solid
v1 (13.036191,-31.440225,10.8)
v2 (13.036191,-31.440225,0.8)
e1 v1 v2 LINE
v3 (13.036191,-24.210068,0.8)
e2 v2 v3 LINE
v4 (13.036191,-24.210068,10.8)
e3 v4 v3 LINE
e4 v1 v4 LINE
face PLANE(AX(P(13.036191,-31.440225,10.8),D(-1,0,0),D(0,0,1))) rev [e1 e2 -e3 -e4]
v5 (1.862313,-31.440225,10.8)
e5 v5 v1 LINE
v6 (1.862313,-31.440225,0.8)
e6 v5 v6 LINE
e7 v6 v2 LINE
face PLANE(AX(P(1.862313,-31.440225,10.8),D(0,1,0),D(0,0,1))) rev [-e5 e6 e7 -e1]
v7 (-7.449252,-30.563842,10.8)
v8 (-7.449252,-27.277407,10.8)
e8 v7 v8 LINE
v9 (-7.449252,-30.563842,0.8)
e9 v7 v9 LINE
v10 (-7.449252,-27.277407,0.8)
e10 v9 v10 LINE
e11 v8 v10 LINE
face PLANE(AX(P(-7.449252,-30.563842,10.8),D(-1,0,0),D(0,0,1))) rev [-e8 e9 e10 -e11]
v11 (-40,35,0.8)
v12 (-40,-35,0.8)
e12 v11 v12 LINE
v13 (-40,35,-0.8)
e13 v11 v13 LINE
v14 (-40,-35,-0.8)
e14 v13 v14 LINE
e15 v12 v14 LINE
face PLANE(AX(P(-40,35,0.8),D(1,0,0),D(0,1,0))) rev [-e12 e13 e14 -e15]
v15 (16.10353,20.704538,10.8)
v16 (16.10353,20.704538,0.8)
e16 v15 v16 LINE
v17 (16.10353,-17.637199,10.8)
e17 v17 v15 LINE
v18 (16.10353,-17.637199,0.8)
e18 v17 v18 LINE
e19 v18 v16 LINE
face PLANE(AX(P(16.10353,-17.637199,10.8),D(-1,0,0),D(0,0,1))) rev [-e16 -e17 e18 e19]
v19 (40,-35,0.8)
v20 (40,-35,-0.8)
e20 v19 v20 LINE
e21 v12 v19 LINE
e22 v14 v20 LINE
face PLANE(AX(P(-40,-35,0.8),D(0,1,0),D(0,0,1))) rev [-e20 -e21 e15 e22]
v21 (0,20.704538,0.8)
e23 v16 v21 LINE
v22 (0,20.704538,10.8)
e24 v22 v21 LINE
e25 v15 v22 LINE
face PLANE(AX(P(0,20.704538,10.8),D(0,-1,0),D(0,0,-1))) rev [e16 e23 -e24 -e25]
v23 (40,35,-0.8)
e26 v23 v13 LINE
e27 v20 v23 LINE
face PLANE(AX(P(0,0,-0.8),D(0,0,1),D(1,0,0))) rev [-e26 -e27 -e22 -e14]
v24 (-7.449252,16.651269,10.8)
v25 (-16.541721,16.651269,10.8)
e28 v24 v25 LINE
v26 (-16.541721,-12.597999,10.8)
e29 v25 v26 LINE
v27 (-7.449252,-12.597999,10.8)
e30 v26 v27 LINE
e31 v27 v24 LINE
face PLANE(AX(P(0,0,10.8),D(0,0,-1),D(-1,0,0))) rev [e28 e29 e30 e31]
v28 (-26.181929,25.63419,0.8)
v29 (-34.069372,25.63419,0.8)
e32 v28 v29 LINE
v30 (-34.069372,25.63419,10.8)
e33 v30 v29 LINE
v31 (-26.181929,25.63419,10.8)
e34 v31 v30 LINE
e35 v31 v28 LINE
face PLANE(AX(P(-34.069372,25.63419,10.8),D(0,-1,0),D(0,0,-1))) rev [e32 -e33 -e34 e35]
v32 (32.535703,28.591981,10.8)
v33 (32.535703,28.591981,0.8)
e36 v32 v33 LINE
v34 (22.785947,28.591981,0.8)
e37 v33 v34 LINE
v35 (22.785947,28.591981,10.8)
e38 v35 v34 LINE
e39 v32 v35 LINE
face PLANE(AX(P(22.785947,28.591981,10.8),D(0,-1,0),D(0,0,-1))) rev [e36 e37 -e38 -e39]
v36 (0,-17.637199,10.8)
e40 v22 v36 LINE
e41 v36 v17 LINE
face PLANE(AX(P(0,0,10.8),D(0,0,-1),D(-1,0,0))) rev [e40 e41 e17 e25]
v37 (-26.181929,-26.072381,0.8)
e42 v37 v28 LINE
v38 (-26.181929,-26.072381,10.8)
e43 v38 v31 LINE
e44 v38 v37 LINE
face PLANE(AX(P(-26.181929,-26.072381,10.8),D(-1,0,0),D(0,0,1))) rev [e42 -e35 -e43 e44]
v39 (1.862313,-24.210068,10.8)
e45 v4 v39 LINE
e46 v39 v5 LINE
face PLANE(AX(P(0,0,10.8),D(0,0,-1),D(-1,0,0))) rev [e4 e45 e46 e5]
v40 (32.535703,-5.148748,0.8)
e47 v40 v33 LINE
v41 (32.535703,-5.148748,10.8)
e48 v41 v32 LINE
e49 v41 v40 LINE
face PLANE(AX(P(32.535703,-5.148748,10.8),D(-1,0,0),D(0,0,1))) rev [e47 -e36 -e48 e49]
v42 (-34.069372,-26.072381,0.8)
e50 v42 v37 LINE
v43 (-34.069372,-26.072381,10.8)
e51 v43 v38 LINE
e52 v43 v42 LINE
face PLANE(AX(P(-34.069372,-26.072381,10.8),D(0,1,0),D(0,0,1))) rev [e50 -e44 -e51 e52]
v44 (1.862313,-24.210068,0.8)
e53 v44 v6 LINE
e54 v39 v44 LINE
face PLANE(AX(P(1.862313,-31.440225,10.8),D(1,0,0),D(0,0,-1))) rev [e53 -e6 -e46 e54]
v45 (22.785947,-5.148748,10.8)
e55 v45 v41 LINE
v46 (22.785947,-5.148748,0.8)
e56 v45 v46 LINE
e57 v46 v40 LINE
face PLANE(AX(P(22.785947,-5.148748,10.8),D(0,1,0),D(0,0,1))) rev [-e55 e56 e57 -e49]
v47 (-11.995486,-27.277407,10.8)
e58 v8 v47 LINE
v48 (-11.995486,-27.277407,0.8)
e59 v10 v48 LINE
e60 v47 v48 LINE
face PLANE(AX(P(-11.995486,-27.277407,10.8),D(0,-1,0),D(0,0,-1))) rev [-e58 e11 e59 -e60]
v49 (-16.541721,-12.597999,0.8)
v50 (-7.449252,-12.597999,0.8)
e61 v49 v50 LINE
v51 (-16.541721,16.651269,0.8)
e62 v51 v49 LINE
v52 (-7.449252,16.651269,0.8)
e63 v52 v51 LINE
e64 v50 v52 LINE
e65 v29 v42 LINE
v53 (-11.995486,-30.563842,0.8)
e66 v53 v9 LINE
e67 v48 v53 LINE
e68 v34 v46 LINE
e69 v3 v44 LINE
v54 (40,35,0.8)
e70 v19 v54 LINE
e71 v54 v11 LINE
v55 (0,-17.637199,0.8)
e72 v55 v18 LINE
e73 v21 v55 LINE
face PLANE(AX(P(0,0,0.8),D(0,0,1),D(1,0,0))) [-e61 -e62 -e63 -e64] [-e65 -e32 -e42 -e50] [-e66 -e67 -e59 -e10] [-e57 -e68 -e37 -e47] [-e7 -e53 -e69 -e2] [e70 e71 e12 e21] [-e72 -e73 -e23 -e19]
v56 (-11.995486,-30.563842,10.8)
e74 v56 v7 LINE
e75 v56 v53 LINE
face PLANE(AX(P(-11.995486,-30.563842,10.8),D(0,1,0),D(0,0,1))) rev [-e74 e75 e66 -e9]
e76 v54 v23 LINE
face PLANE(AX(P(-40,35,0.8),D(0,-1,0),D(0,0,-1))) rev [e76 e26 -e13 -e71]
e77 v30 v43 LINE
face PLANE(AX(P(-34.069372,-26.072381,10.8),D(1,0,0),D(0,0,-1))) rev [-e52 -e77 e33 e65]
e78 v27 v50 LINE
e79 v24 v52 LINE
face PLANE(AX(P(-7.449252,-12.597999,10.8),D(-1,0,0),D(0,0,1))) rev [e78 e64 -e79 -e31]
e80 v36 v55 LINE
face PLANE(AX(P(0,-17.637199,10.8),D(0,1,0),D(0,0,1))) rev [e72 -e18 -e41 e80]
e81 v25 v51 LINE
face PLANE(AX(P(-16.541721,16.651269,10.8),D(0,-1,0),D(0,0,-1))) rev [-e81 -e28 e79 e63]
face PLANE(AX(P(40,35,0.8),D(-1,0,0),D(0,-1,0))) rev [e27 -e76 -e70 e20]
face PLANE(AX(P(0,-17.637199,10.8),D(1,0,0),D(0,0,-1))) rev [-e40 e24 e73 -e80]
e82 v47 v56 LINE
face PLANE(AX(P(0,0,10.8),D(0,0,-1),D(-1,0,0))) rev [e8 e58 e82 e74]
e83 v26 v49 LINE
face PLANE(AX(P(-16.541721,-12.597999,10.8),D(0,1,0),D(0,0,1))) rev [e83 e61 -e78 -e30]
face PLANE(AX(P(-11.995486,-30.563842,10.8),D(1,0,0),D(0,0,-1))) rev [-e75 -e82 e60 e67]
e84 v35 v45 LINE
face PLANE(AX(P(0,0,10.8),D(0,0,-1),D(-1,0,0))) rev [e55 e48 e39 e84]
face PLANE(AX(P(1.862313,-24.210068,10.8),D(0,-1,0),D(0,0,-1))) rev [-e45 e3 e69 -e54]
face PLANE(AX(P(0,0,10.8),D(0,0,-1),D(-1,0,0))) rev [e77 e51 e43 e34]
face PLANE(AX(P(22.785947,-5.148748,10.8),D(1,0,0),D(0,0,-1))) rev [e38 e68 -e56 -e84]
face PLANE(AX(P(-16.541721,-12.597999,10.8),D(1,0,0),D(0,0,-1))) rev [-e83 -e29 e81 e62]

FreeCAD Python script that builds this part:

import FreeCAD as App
import Part
import Sketcher
from FreeCAD import Vector


def add_polygon(sketch, points):
    """Adds a closed chain of lines whose ends are joined by coincident constraints."""
    first, n = sketch.GeometryCount, len(points)
    for a, b in zip(points, points[1:] + points[:1]):
        sketch.addGeometry(Part.LineSegment(App.Vector(*a, 0), App.Vector(*b, 0)), False)
    for i in range(n):
        sketch.addConstraint(Sketcher.Constraint("Coincident", first + i, 2, first + (i + 1) % n, 1))

doc = App.newDocument("Part")
body = doc.addObject("PartDesign::Body", "Body")

# Sketch on XY plane
sketch1 = body.newObject("Sketcher::SketchObject", "Sketch")
sketch1.AttachmentSupport = (doc.getObject("XY_Plane"), [""])
sketch1.MapMode = "FlatFace"
add_polygon(sketch1, [(-40, 35), (-40, -35), (40, -35), (40, 35)])  # lines 0-3
sketch1.addConstraint([
    Sketcher.Constraint("Vertical", 0),
    Sketcher.Constraint("Horizontal", 1),
    Sketcher.Constraint("Vertical", 2),
    Sketcher.Constraint("Horizontal", 3),
    Sketcher.Constraint("Symmetric", 0, 2, 2, 2, -1, 1),
    Sketcher.Constraint("DistanceX", 1, 1, 1, 2, 80.0),
    Sketcher.Constraint("DistanceY", 0, 2, 0, 1, 70.0),
])
pad1 = body.newObject("PartDesign::Pad", "Pad")
pad1.Profile = sketch1
pad1.Length = 1.6
pad1.Midplane = True

# Sketch on XY plane
sketch2 = body.newObject("Sketcher::SketchObject", "Sketch001")
sketch2.AttachmentSupport = (doc.getObject("XY_Plane"), [""])
sketch2.MapMode = "FlatFace"
sketch2.AttachmentOffset = App.Placement(Vector(0, 0, 0.8), App.Rotation())
add_polygon(sketch2, [(-16.5, 16.7), (-16.5, -12.6), (-7.4, -12.6), (-7.4, 16.7)])  # lines 0-3
add_polygon(sketch2, [(0, 20.7), (0, -17.6), (16.1, -17.6), (16.1, 20.7)])  # lines 4-7
add_polygon(sketch2, [(-34.1, 25.6), (-34.1, -26.1), (-26.2, -26.1), (-26.2, 25.6)])  # lines 8-11
add_polygon(sketch2, [(22.8, 28.6), (22.8, -5.1), (32.5, -5.1), (32.5, 28.6)])  # lines 12-15
add_polygon(sketch2, [(-12, -27.3), (-12, -30.6), (-7.4, -30.6), (-7.4, -27.3)])  # lines 16-19
add_polygon(sketch2, [(1.9, -24.2), (1.9, -31.4), (13, -31.4), (13, -24.2)])  # lines 20-23
sketch2.addConstraint([
    Sketcher.Constraint("Vertical", 0),
    Sketcher.Constraint("Horizontal", 1),
    Sketcher.Constraint("Vertical", 2),
    Sketcher.Constraint("Horizontal", 3),
    Sketcher.Constraint("Vertical", 4),
    Sketcher.Constraint("Horizontal", 5),
    Sketcher.Constraint("Vertical", 6),
    Sketcher.Constraint("Horizontal", 7),
    Sketcher.Constraint("Vertical", 8),
    Sketcher.Constraint("Horizontal", 9),
    Sketcher.Constraint("Vertical", 10),
    Sketcher.Constraint("Horizontal", 11),
    Sketcher.Constraint("Vertical", 12),
    Sketcher.Constraint("Horizontal", 13),
    Sketcher.Constraint("Vertical", 14),
    Sketcher.Constraint("Horizontal", 15),
    Sketcher.Constraint("Vertical", 16),
    Sketcher.Constraint("Horizontal", 17),
    Sketcher.Constraint("Vertical", 18),
    Sketcher.Constraint("Horizontal", 19),
    Sketcher.Constraint("Vertical", 20),
    Sketcher.Constraint("Horizontal", 21),
    Sketcher.Constraint("Vertical", 22),
    Sketcher.Constraint("Horizontal", 23),
    Sketcher.Constraint("PointOnObject", 4, 2, -2),
    Sketcher.Constraint("Vertical", 2, 2, 17, 2),
    Sketcher.Constraint("DistanceY", 0, 2, -1, 1, 12.597999),
    Sketcher.Constraint("DistanceX", 1, 1, 1, 2, 9.092469),
    Sketcher.Constraint("DistanceX", 5, 1, 5, 2, 16.10353),
    Sketcher.Constraint("DistanceY", 0, 2, 0, 1, 29.249268),
    Sketcher.Constraint("DistanceY", 8, 2, 8, 1, 51.706571),
    Sketcher.Constraint("DistanceY", 12, 2, 12, 1, 33.740729),
    Sketcher.Constraint("DistanceY", 4, 2, -1, 1, 17.637199),
    Sketcher.Constraint("DistanceX", 1, 2, 12, 2, 30.235199),
    Sketcher.Constraint("DistanceX", 16, 2, 20, 2, 13.857799),
    Sketcher.Constraint("DistanceX", 9, 1, 9, 2, 7.887443),
    Sketcher.Constraint("DistanceX", 13, 1, 13, 2, 9.749756),
    Sketcher.Constraint("DistanceX", 17, 1, 17, 2, 4.546235),
    Sketcher.Constraint("DistanceX", 21, 1, 21, 2, 11.173878),
    Sketcher.Constraint("DistanceY", 4, 2, 4, 1, 38.341737),
    Sketcher.Constraint("DistanceY", 16, 2, 16, 1, 3.286435),
    Sketcher.Constraint("DistanceY", 20, 2, 20, 1, 7.230156),
    Sketcher.Constraint("DistanceX", 0, 2, -1, 1, 16.541721),
    Sketcher.Constraint("DistanceY", 8, 2, -1, 1, 26.072381),
    Sketcher.Constraint("DistanceX", 9, 2, -1, 1, 26.181929),
    Sketcher.Constraint("DistanceY", -1, 1, 14, 2, 28.591981),
    Sketcher.Constraint("DistanceY", 16, 2, -1, 1, 30.563842),
    Sketcher.Constraint("DistanceY", 22, 2, -1, 1, 24.210068),
])
pad2 = body.newObject("PartDesign::Pad", "Pad001")
pad2.Profile = sketch2
pad2.Length = 10

doc.recompute()
